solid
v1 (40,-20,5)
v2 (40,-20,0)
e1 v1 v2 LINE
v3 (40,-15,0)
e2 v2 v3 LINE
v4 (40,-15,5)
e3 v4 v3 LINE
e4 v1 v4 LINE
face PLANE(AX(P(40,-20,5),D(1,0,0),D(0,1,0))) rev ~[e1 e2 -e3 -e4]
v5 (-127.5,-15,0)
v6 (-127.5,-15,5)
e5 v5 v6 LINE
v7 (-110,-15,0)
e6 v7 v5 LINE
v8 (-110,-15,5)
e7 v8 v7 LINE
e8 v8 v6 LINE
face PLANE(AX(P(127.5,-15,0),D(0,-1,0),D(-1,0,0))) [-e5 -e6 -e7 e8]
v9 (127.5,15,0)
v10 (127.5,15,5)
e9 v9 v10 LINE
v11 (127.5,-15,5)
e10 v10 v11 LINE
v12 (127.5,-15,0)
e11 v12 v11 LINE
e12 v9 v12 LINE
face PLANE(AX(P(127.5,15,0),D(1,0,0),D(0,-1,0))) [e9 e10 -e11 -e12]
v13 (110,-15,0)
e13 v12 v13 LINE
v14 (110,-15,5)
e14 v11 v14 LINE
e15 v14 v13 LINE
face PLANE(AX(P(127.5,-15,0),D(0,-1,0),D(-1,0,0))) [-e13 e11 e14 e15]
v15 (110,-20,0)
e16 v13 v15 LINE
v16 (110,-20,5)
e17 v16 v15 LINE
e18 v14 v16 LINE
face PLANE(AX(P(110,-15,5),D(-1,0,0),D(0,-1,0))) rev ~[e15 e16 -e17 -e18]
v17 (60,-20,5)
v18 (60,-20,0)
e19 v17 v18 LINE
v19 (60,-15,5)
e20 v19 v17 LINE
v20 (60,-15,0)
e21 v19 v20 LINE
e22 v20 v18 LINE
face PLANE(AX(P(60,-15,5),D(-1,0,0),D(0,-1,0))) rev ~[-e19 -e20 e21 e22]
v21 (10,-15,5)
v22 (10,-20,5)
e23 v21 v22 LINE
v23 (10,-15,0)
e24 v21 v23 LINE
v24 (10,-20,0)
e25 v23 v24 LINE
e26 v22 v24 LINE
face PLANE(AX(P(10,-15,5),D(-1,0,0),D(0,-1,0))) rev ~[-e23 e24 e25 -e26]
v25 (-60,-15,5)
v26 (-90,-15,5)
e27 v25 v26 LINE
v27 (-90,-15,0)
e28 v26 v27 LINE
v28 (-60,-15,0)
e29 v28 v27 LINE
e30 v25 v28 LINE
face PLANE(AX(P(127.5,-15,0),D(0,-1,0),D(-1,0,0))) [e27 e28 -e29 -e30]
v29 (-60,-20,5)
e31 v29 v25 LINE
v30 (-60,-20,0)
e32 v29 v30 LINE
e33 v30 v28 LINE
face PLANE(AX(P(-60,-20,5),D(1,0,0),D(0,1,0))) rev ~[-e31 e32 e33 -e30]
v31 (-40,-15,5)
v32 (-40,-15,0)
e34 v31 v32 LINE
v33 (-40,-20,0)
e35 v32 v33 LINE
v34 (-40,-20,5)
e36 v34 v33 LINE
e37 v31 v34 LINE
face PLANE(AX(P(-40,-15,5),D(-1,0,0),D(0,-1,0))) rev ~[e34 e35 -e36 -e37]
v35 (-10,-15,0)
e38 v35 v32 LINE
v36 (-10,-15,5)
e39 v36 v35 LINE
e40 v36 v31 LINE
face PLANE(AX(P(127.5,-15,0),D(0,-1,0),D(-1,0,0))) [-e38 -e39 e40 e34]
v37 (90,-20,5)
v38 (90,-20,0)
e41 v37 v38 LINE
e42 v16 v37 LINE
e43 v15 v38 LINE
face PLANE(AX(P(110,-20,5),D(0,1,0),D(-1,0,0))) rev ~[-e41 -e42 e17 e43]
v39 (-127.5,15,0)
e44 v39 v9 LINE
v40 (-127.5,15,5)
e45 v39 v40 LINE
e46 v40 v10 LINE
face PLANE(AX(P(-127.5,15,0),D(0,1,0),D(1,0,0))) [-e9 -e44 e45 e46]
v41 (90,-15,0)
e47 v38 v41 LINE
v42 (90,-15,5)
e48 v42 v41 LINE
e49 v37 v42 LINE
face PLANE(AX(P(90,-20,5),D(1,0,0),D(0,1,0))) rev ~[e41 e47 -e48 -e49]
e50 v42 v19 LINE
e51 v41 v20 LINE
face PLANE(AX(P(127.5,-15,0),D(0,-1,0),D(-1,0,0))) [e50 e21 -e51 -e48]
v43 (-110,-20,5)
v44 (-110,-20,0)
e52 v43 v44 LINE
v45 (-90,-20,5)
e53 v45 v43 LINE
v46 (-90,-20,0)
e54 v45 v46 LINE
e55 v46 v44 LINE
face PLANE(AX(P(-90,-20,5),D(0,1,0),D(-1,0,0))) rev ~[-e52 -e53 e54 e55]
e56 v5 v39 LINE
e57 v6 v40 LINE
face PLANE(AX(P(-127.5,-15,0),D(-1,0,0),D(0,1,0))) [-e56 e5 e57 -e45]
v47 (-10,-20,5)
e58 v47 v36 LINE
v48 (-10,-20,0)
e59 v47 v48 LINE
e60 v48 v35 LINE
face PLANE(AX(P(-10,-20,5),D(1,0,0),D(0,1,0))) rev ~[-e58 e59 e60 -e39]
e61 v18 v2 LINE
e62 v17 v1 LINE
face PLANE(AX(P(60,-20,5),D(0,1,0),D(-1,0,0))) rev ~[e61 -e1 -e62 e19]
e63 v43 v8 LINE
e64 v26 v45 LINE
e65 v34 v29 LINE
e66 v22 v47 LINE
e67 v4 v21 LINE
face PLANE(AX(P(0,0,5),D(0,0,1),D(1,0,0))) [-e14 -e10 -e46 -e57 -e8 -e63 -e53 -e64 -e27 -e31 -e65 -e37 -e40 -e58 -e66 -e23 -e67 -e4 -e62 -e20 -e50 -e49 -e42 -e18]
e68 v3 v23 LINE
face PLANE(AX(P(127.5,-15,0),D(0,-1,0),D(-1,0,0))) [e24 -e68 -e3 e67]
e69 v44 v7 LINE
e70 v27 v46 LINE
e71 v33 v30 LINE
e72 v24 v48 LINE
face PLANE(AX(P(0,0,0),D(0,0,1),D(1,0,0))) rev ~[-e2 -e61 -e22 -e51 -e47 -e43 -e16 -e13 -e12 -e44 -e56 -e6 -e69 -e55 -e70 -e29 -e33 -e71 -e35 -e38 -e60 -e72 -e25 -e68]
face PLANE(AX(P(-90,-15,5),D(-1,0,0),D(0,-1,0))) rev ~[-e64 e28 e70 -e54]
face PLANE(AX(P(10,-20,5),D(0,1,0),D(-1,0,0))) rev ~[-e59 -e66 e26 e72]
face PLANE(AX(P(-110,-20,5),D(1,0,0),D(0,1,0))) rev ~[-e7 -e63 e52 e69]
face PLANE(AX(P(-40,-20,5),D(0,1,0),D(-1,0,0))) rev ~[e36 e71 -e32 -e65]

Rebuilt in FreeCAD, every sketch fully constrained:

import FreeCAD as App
import Part
import Sketcher

doc = App.newDocument("Part")
body = doc.addObject("PartDesign::Body", "Body")

# Sketch on XY plane
sketch1 = body.newObject("Sketcher::SketchObject", "Sketch")
sketch1.AttachmentSupport = (doc.getObject("XY_Plane"), [""])
sketch1.MapMode = "FlatFace"
sketch1.addGeometry([
    Part.LineSegment(App.Vector(127.5, 15, 0), App.Vector(-127.5, 15, 0)),
    Part.LineSegment(App.Vector(-127.5, 15, 0), App.Vector(-127.5, -15, 0)),
    Part.LineSegment(App.Vector(-127.5, -15, 0), App.Vector(127.5, -15, 0)),
    Part.LineSegment(App.Vector(127.5, -15, 0), App.Vector(127.5, 15, 0)),
], False)
sketch1.addConstraint([
    Sketcher.Constraint("Coincident", 0, 2, 1, 1),
    Sketcher.Constraint("Coincident", 1, 2, 2, 1),
    Sketcher.Constraint("Coincident", 2, 2, 3, 1),
    Sketcher.Constraint("Coincident", 3, 2, 0, 1),
    Sketcher.Constraint("Horizontal", 0),
    Sketcher.Constraint("Vertical", 1),
    Sketcher.Constraint("Horizontal", 2),
    Sketcher.Constraint("Vertical", 3),
    Sketcher.Constraint("Symmetric", 0, 2, 2, 2, -1, 1),
    Sketcher.Constraint("DistanceX", 0, 2, 0, 1, 255.0),
    Sketcher.Constraint("DistanceY", 1, 2, 1, 1, 30.0),
])
pad1 = body.newObject("PartDesign::Pad", "Pad")
pad1.Profile = sketch1
pad1.Length = 5

# Sketch on XY plane
sketch2 = body.newObject("Sketcher::SketchObject", "Sketch001")
sketch2.AttachmentSupport = (doc.getObject("XY_Plane"), [""])
sketch2.MapMode = "FlatFace"
sketch2.AttachmentOffset = App.Placement(App.Vector(0, 0, 5), App.Rotation())
sketch2.addGeometry([
    Part.LineSegment(App.Vector(110, -15, 0), App.Vector(90, -15, 0)),  # 0
    Part.LineSegment(App.Vector(90, -15, 0), App.Vector(90, -20, 0)),  # 1
    Part.LineSegment(App.Vector(90, -20, 0), App.Vector(110, -20, 0)),  # 2
    Part.LineSegment(App.Vector(110, -20, 0), App.Vector(110, -15, 0)),  # 3
    Part.LineSegment(App.Vector(60, -15, 0), App.Vector(40, -15, 0)),  # 4
    Part.LineSegment(App.Vector(40, -15, 0), App.Vector(40, -20, 0)),  # 5
    Part.LineSegment(App.Vector(40, -20, 0), App.Vector(60, -20, 0)),  # 6
    Part.LineSegment(App.Vector(60, -20, 0), App.Vector(60, -15, 0)),  # 7
    Part.LineSegment(App.Vector(10, -15, 0), App.Vector(-10, -15, 0)),  # 8
    Part.LineSegment(App.Vector(-10, -15, 0), App.Vector(-10, -20, 0)),  # 9
    Part.LineSegment(App.Vector(-10, -20, 0), App.Vector(10, -20, 0)),  # 10
    Part.LineSegment(App.Vector(10, -20, 0), App.Vector(10, -15, 0)),  # 11
    Part.LineSegment(App.Vector(-40, -15, 0), App.Vector(-60, -15, 0)),  # 12
    Part.LineSegment(App.Vector(-60, -15, 0), App.Vector(-60, -20, 0)),  # 13
    Part.LineSegment(App.Vector(-60, -20, 0), App.Vector(-40, -20, 0)),  # 14
    Part.LineSegment(App.Vector(-40, -20, 0), App.Vector(-40, -15, 0)),  # 15
    Part.LineSegment(App.Vector(-90, -15, 0), App.Vector(-110, -15, 0)),  # 16
    Part.LineSegment(App.Vector(-110, -15, 0), App.Vector(-110, -20, 0)),  # 17
    Part.LineSegment(App.Vector(-110, -20, 0), App.Vector(-90, -20, 0)),  # 18
    Part.LineSegment(App.Vector(-90, -20, 0), App.Vector(-90, -15, 0)),  # 19
], False)
sketch2.addConstraint([
    Sketcher.Constraint("Coincident", 0, 2, 1, 1),
    Sketcher.Constraint("Coincident", 1, 2, 2, 1),
    Sketcher.Constraint("Coincident", 2, 2, 3, 1),
    Sketcher.Constraint("Coincident", 3, 2, 0, 1),
    Sketcher.Constraint("Coincident", 4, 2, 5, 1),
    Sketcher.Constraint("Coincident", 5, 2, 6, 1),
    Sketcher.Constraint("Coincident", 6, 2, 7, 1),
    Sketcher.Constraint("Coincident", 7, 2, 4, 1),
    Sketcher.Constraint("Coincident", 8, 2, 9, 1),
    Sketcher.Constraint("Coincident", 9, 2, 10, 1),
    Sketcher.Constraint("Coincident", 10, 2, 11, 1),
    Sketcher.Constraint("Coincident", 11, 2, 8, 1),
    Sketcher.Constraint("Coincident", 12, 2, 13, 1),
    Sketcher.Constraint("Coincident", 13, 2, 14, 1),
    Sketcher.Constraint("Coincident", 14, 2, 15, 1),
    Sketcher.Constraint("Coincident", 15, 2, 12, 1),
    Sketcher.Constraint("Coincident", 16, 2, 17, 1),
    Sketcher.Constraint("Coincident", 17, 2, 18, 1),
    Sketcher.Constraint("Coincident", 18, 2, 19, 1),
    Sketcher.Constraint("Coincident", 19, 2, 16, 1),
    Sketcher.Constraint("Horizontal", 0),
    Sketcher.Constraint("Vertical", 1),
    Sketcher.Constraint("Horizontal", 2),
    Sketcher.Constraint("Vertical", 3),
    Sketcher.Constraint("Horizontal", 4),
    Sketcher.Constraint("Vertical", 5),
    Sketcher.Constraint("Horizontal", 6),
    Sketcher.Constraint("Vertical", 7),
    Sketcher.Constraint("Horizontal", 8),
    Sketcher.Constraint("Vertical", 9),
    Sketcher.Constraint("Horizontal", 10),
    Sketcher.Constraint("Vertical", 11),
    Sketcher.Constraint("Horizontal", 12),
    Sketcher.Constraint("Vertical", 13),
    Sketcher.Constraint("Horizontal", 14),
    Sketcher.Constraint("Vertical", 15),
    Sketcher.Constraint("Horizontal", 16),
    Sketcher.Constraint("Vertical", 17),
    Sketcher.Constraint("Horizontal", 18),
    Sketcher.Constraint("Vertical", 19),
    Sketcher.Constraint("Symmetric", 7, 2, 12, 2, -2),
    Sketcher.Constraint("Symmetric", 5, 2, 14, 2, -2),
    Sketcher.Constraint("Symmetric", 3, 2, 16, 2, -2),
    Sketcher.Constraint("Symmetric", 1, 2, 18, 2, -2),
    Sketcher.Constraint("Horizontal", 3, 2, 4, 2),
    Sketcher.Constraint("Horizontal", 2, 2, 5, 2),
    Sketcher.Constraint("Horizontal", 7, 2, 8, 2),
    Sketcher.Constraint("Horizontal", 6, 2, 9, 2),
    Sketcher.Constraint("Equal", 2, 4),
    Sketcher.Constraint("Equal", 6, 8),
    Sketcher.Constraint("DistanceX", 0, 2, 0, 1, 20.0),
    Sketcher.Constraint("DistanceY", 1, 2, 1, 1, 5.0),
    Sketcher.Constraint("DistanceY", 1, 2, -1, 1, 20.0),
    Sketcher.Constraint("DistanceX", 4, 2, 0, 2, 50.0),
    Sketcher.Constraint("DistanceX", 8, 2, 4, 2, 50.0),
    Sketcher.Constraint("DistanceX", 12, 2, 8, 2, 50.0),
])
pad2 = body.newObject("PartDesign::Pad", "Pad001")
pad2.Profile = sketch2
pad2.Length = 5
pad2.Reversed = True

doc.recompute()
